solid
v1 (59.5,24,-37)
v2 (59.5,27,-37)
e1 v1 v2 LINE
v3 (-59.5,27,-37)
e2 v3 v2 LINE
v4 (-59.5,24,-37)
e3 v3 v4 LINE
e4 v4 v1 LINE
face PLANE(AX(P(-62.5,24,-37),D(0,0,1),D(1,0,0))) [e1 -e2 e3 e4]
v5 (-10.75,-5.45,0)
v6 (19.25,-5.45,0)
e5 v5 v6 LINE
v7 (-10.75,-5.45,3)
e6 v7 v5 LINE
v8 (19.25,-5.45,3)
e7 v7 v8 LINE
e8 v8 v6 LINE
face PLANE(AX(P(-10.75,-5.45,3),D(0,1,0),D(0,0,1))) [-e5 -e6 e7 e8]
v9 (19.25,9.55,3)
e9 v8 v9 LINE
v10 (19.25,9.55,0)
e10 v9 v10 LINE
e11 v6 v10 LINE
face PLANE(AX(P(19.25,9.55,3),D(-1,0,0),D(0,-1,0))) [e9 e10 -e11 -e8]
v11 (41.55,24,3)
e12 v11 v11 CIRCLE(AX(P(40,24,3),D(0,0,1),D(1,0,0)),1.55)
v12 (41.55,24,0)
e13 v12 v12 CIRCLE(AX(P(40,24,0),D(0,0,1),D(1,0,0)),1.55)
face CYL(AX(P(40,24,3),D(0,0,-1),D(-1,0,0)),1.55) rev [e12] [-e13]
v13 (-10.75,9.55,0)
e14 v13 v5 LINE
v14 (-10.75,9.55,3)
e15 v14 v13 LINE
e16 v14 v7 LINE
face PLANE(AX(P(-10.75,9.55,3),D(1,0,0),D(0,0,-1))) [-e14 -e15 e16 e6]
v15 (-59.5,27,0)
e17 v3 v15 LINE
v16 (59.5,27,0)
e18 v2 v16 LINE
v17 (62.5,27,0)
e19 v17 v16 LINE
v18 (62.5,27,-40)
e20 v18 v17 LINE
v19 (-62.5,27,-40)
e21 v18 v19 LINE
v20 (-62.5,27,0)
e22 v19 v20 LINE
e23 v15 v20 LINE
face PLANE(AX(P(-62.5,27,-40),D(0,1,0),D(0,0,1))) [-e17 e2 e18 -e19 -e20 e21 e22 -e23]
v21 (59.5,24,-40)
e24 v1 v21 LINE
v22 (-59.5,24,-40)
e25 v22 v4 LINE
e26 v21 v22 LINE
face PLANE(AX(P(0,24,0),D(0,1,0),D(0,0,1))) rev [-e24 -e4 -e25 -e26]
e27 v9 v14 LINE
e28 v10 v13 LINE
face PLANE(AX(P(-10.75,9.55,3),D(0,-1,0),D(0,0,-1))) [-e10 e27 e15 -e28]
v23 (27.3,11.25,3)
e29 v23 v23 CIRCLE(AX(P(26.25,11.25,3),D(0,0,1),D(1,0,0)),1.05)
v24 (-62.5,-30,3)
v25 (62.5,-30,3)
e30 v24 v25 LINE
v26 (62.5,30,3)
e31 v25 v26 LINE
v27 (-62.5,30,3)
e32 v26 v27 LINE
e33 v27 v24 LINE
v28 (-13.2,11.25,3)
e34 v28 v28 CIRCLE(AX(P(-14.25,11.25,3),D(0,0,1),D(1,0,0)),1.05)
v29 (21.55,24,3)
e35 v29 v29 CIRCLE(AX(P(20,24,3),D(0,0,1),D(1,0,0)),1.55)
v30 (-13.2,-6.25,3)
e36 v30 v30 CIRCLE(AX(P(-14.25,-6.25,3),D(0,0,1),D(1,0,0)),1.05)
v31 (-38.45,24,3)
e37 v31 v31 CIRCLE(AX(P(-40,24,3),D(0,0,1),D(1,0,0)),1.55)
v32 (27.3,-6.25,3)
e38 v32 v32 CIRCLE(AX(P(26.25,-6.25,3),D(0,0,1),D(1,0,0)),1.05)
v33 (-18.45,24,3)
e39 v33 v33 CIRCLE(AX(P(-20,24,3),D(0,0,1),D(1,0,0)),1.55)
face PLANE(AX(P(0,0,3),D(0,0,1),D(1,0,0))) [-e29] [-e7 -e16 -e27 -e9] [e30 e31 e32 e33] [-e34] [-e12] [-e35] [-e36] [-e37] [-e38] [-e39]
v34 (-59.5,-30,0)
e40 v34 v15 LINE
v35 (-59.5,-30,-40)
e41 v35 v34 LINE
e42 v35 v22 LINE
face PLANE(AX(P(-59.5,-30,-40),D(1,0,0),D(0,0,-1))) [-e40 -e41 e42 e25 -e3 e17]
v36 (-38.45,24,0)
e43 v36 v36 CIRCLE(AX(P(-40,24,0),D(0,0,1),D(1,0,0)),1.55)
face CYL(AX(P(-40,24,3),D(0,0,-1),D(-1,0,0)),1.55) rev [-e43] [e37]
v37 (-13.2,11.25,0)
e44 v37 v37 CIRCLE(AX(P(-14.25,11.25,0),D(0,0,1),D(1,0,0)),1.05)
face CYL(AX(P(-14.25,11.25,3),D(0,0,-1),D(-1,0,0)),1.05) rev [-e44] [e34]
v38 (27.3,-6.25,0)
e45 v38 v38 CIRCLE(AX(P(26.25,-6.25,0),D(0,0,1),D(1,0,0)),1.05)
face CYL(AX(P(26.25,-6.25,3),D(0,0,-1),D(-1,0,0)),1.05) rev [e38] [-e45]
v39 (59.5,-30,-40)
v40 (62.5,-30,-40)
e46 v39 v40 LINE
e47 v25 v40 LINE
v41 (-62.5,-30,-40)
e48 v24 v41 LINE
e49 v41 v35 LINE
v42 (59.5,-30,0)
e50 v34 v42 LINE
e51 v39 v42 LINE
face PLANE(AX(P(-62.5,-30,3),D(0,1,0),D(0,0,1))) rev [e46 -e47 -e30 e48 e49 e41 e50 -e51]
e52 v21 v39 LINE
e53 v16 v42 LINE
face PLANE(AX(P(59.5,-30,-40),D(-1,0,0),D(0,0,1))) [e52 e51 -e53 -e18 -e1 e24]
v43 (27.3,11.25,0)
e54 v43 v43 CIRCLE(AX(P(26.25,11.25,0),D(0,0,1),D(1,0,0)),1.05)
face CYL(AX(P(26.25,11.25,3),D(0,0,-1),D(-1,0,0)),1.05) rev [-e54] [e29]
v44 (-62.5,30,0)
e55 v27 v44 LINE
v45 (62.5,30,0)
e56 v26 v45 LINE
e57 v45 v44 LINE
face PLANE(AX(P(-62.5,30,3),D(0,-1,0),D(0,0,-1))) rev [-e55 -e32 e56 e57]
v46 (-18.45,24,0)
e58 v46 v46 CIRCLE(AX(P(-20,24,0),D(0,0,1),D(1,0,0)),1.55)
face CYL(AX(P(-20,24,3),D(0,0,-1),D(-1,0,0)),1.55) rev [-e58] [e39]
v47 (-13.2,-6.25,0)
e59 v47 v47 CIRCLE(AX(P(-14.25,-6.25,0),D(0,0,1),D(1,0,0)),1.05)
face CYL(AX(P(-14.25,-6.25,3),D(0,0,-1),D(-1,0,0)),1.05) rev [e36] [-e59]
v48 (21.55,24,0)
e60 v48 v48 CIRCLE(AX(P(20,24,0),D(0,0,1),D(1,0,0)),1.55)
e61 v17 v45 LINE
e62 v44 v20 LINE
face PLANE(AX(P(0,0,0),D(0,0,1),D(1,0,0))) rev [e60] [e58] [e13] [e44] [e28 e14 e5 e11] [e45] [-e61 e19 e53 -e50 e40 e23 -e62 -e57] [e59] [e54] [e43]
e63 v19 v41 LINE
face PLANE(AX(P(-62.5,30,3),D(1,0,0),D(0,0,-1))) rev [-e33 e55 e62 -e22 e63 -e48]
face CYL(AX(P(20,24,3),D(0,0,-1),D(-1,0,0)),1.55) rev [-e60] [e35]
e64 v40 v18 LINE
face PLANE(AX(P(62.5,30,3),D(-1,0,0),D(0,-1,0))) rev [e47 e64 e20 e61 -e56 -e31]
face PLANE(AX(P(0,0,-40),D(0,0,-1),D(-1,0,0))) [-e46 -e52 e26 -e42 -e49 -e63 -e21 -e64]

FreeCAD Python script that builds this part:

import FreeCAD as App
import Part
import Sketcher

V = App.Vector

doc = App.newDocument("Part")
params = doc.addObject("Spreadsheet::Sheet", "Params")
for row, (alias, value) in enumerate([
    ("sketch1_diameter", "2.1 mm"),
    ("sketch1_diameter2", "3.1 mm"),
    ("sketch1_width", "125 mm"),
    ("sketch1_width2", "30 mm"),
    ("sketch1_height", "60 mm"),
    ("pad1_length", "3 mm"),
    ("sketch2_width", "3 mm"),
    ("sketch2_height", "57 mm"),
    ("pad2_length", "43 mm"),
    ("sketch3_width", "125 mm"),
    ("sketch3_height", "3 mm"),
    ("pad3_length", "3 mm"),
], start=1):
    params.set(f"A{row}", alias)
    params.set(f"B{row}", "=" + value)
    params.setAlias(f"B{row}", alias)

body = doc.addObject("PartDesign::Body", "Body")

sketch1 = body.newObject("Sketcher::SketchObject", "Sketch")
sketch1.AttachmentSupport = (doc.getObject("XY_Plane"), [""])
sketch1.MapMode = "FlatFace"
sketch1.addGeometry(Part.LineSegment(V(-62.5, 30, 0), V(-62.5, -30, 0)), False)
sketch1.addGeometry(Part.LineSegment(V(-62.5, -30, 0), V(62.5, -30, 0)), False)
sketch1.addGeometry(Part.LineSegment(V(62.5, -30, 0), V(62.5, 30, 0)), False)
sketch1.addGeometry(Part.LineSegment(V(62.5, 30, 0), V(-62.5, 30, 0)), False)
sketch1.addGeometry(Part.Circle(V(-14.2, -6.2, 0), V(0, 0, 1), 1.1), False)
sketch1.addGeometry(Part.Circle(V(26.2, -6.2, 0), V(0, 0, 1), 1.1), False)
sketch1.addGeometry(Part.LineSegment(V(19.2, -5.5, 0), V(-10.8, -5.5, 0)), False)
sketch1.addGeometry(Part.LineSegment(V(-10.8, -5.5, 0), V(-10.8, 9.6, 0)), False)
sketch1.addGeometry(Part.LineSegment(V(-10.8, 9.6, 0), V(19.2, 9.6, 0)), False)
sketch1.addGeometry(Part.LineSegment(V(19.2, 9.6, 0), V(19.2, -5.5, 0)), False)
sketch1.addGeometry(Part.Circle(V(-14.2, 11.2, 0), V(0, 0, 1), 1.1), False)
sketch1.addGeometry(Part.Circle(V(-40, 24, 0), V(0, 0, 1), 1.6), False)
sketch1.addGeometry(Part.Circle(V(-20, 24, 0), V(0, 0, 1), 1.6), False)
sketch1.addGeometry(Part.Circle(V(26.2, 11.2, 0), V(0, 0, 1), 1.1), False)
sketch1.addGeometry(Part.Circle(V(20, 24, 0), V(0, 0, 1), 1.6), False)
sketch1.addGeometry(Part.Circle(V(40, 24, 0), V(0, 0, 1), 1.6), False)
sketch1.addConstraint(Sketcher.Constraint("Coincident", 0, 2, 1, 1))
sketch1.addConstraint(Sketcher.Constraint("Coincident", 1, 2, 2, 1))
sketch1.addConstraint(Sketcher.Constraint("Coincident", 2, 2, 3, 1))
sketch1.addConstraint(Sketcher.Constraint("Coincident", 3, 2, 0, 1))
sketch1.addConstraint(Sketcher.Constraint("Coincident", 6, 2, 7, 1))
sketch1.addConstraint(Sketcher.Constraint("Coincident", 7, 2, 8, 1))
sketch1.addConstraint(Sketcher.Constraint("Coincident", 8, 2, 9, 1))
sketch1.addConstraint(Sketcher.Constraint("Coincident", 9, 2, 6, 1))
sketch1.addConstraint(Sketcher.Constraint("Vertical", 0))
sketch1.addConstraint(Sketcher.Constraint("Horizontal", 1))
sketch1.addConstraint(Sketcher.Constraint("Vertical", 2))
sketch1.addConstraint(Sketcher.Constraint("Horizontal", 3))
sketch1.addConstraint(Sketcher.Constraint("Horizontal", 6))
sketch1.addConstraint(Sketcher.Constraint("Vertical", 7))
sketch1.addConstraint(Sketcher.Constraint("Horizontal", 8))
sketch1.addConstraint(Sketcher.Constraint("Vertical", 9))
sketch1.addConstraint(Sketcher.Constraint("Equal", 4, 5))
sketch1.addConstraint(Sketcher.Constraint("Equal", 5, 10))
sketch1.addConstraint(Sketcher.Constraint("Equal", 11, 12))
sketch1.addConstraint(Sketcher.Constraint("Equal", 10, 13))
sketch1.addConstraint(Sketcher.Constraint("Equal", 12, 14))
sketch1.addConstraint(Sketcher.Constraint("Equal", 14, 15))
sketch1.addConstraint(Sketcher.Constraint("Symmetric", 0, 2, 2, 2, -1, 1))
sketch1.addConstraint(Sketcher.Constraint("Symmetric", 12, 3, 14, 3, -2))
sketch1.addConstraint(Sketcher.Constraint("Symmetric", 11, 3, 15, 3, -2))
sketch1.addConstraint(Sketcher.Constraint("Horizontal", 4, 3, 5, 3))
sketch1.addConstraint(Sketcher.Constraint("Horizontal", 11, 3, 12, 3))
sketch1.addConstraint(Sketcher.Constraint("Horizontal", 10, 3, 13, 3))
sketch1.addConstraint(Sketcher.Constraint("Vertical", 4, 3, 10, 3))
sketch1.addConstraint(Sketcher.Constraint("Vertical", 5, 3, 13, 3))
sketch1.addConstraint(Sketcher.Constraint("Diameter", 4, 2.1))
sketch1.addConstraint(Sketcher.Constraint("Diameter", 11, 3.1))
sketch1.addConstraint(Sketcher.Constraint("DistanceX", 1, 1, 1, 2, 125.0))
sketch1.addConstraint(Sketcher.Constraint("DistanceX", 6, 2, 6, 1, 30.0))
sketch1.addConstraint(Sketcher.Constraint("DistanceY", 0, 2, 0, 1, 60.0))
sketch1.addConstraint(Sketcher.Constraint("DistanceY", 7, 1, 7, 2, 15.0))
sketch1.addConstraint(Sketcher.Constraint("DistanceX", 11, 3, -1, 1, 40.0))
sketch1.addConstraint(Sketcher.Constraint("DistanceY", -1, 1, 11, 3, 24.0))
sketch1.addConstraint(Sketcher.Constraint("DistanceX", 12, 3, -1, 1, 20.0))
sketch1.addConstraint(Sketcher.Constraint("DistanceX", 6, 2, 5, 3, 37.0))
sketch1.addConstraint(Sketcher.Constraint("DistanceX", 4, 3, 5, 3, 40.5))
sketch1.addConstraint(Sketcher.Constraint("DistanceY", 4, 3, 10, 3, 17.5))
sketch1.addConstraint(Sketcher.Constraint("DistanceY", 4, 3, 6, 2, 0.8))
sketch1.addConstraint(Sketcher.Constraint("DistanceX", 4, 3, -1, 1, 14.25))
sketch1.addConstraint(Sketcher.Constraint("DistanceY", 4, 3, -1, 1, 6.25))
sketch1.setExpression("Constraints[30]", "Params.sketch1_diameter")
sketch1.setExpression("Constraints[31]", "Params.sketch1_diameter2")
sketch1.setExpression("Constraints[32]", "Params.sketch1_width")
sketch1.setExpression("Constraints[33]", "Params.sketch1_width2")
sketch1.setExpression("Constraints[34]", "Params.sketch1_height")
pad1 = body.newObject("PartDesign::Pad", "Pad")
pad1.Profile = sketch1
pad1.setExpression("Length", "Params.pad1_length")

sketch2 = body.newObject("Sketcher::SketchObject", "Sketch001")
sketch2.AttachmentSupport = (doc.getObject("XY_Plane"), [""])
sketch2.MapMode = "FlatFace"
sketch2.AttachmentOffset = App.Placement(V(0, 0, 3), App.Rotation())
sketch2.addGeometry(Part.LineSegment(V(-62.5, 27, 0), V(-62.5, -30, 0)), False)
sketch2.addGeometry(Part.LineSegment(V(-62.5, -30, 0), V(-59.5, -30, 0)), False)
sketch2.addGeometry(Part.LineSegment(V(-59.5, -30, 0), V(-59.5, 27, 0)), False)
sketch2.addGeometry(Part.LineSegment(V(-59.5, 27, 0), V(-62.5, 27, 0)), False)
sketch2.addGeometry(Part.LineSegment(V(59.5, 27, 0), V(59.5, -30, 0)), False)
sketch2.addGeometry(Part.LineSegment(V(59.5, -30, 0), V(62.5, -30, 0)), False)
sketch2.addGeometry(Part.LineSegment(V(62.5, -30, 0), V(62.5, 27, 0)), False)
sketch2.addGeometry(Part.LineSegment(V(62.5, 27, 0), V(59.5, 27, 0)), False)
sketch2.addConstraint(Sketcher.Constraint("Coincident", 0, 2, 1, 1))
sketch2.addConstraint(Sketcher.Constraint("Coincident", 1, 2, 2, 1))
sketch2.addConstraint(Sketcher.Constraint("Coincident", 2, 2, 3, 1))
sketch2.addConstraint(Sketcher.Constraint("Coincident", 3, 2, 0, 1))
sketch2.addConstraint(Sketcher.Constraint("Coincident", 4, 2, 5, 1))
sketch2.addConstraint(Sketcher.Constraint("Coincident", 5, 2, 6, 1))
sketch2.addConstraint(Sketcher.Constraint("Coincident", 6, 2, 7, 1))
sketch2.addConstraint(Sketcher.Constraint("Coincident", 7, 2, 4, 1))
sketch2.addConstraint(Sketcher.Constraint("Vertical", 0))
sketch2.addConstraint(Sketcher.Constraint("Horizontal", 1))
sketch2.addConstraint(Sketcher.Constraint("Vertical", 2))
sketch2.addConstraint(Sketcher.Constraint("Horizontal", 3))
sketch2.addConstraint(Sketcher.Constraint("Vertical", 4))
sketch2.addConstraint(Sketcher.Constraint("Horizontal", 5))
sketch2.addConstraint(Sketcher.Constraint("Vertical", 6))
sketch2.addConstraint(Sketcher.Constraint("Horizontal", 7))
sketch2.addConstraint(Sketcher.Constraint("Symmetric", 1, 2, 4, 2, -2))
sketch2.addConstraint(Sketcher.Constraint("Symmetric", 3, 2, 6, 2, -2))
sketch2.addConstraint(Sketcher.Constraint("DistanceX", 1, 1, 1, 2, 3.0))
sketch2.addConstraint(Sketcher.Constraint("DistanceY", 0, 2, 0, 1, 57.0))
sketch2.addConstraint(Sketcher.Constraint("DistanceY", 0, 2, -1, 1, 30.0))
sketch2.addConstraint(Sketcher.Constraint("DistanceX", 1, 2, 4, 2, 119.0))
sketch2.setExpression("Constraints[18]", "Params.sketch2_width")
sketch2.setExpression("Constraints[19]", "Params.sketch2_height")
pad2 = body.newObject("PartDesign::Pad", "Pad001")
pad2.Profile = sketch2
pad2.setExpression("Length", "Params.pad2_length")
pad2.Reversed = True

sketch3 = body.newObject("Sketcher::SketchObject", "Sketch002")
sketch3.AttachmentSupport = (doc.getObject("XZ_Plane"), [""])
sketch3.MapMode = "FlatFace"
sketch3.AttachmentOffset = App.Placement(V(0, 0, -27), App.Rotation())
sketch3.addGeometry(Part.LineSegment(V(-62.5, -40, 0), V(-62.5, -37, 0)), False)
sketch3.addGeometry(Part.LineSegment(V(-62.5, -37, 0), V(62.5, -37, 0)), False)
sketch3.addGeometry(Part.LineSegment(V(62.5, -37, 0), V(62.5, -40, 0)), False)
sketch3.addGeometry(Part.LineSegment(V(62.5, -40, 0), V(-62.5, -40, 0)), False)
sketch3.addConstraint(Sketcher.Constraint("Coincident", 0, 2, 1, 1))
sketch3.addConstraint(Sketcher.Constraint("Coincident", 1, 2, 2, 1))
sketch3.addConstraint(Sketcher.Constraint("Coincident", 2, 2, 3, 1))
sketch3.addConstraint(Sketcher.Constraint("Coincident", 3, 2, 0, 1))
sketch3.addConstraint(Sketcher.Constraint("Vertical", 0))
sketch3.addConstraint(Sketcher.Constraint("Horizontal", 1))
sketch3.addConstraint(Sketcher.Constraint("Vertical", 2))
sketch3.addConstraint(Sketcher.Constraint("Horizontal", 3))
sketch3.addConstraint(Sketcher.Constraint("DistanceX", 1, 1, 1, 2, 125.0))
sketch3.addConstraint(Sketcher.Constraint("DistanceY", 0, 1, 0, 2, 3.0))
sketch3.addConstraint(Sketcher.Constraint("DistanceY", 0, 2, -1, 1, 37.0))
sketch3.addConstraint(Sketcher.Constraint("DistanceX", 0, 2, -1, 1, 62.5))
sketch3.setExpression("Constraints[8]", "Params.sketch3_width")
sketch3.setExpression("Constraints[9]", "Params.sketch3_height")
pad3 = body.newObject("PartDesign::Pad", "Pad002")
pad3.Profile = sketch3
pad3.setExpression("Length", "Params.pad3_length")

doc.recompute()
